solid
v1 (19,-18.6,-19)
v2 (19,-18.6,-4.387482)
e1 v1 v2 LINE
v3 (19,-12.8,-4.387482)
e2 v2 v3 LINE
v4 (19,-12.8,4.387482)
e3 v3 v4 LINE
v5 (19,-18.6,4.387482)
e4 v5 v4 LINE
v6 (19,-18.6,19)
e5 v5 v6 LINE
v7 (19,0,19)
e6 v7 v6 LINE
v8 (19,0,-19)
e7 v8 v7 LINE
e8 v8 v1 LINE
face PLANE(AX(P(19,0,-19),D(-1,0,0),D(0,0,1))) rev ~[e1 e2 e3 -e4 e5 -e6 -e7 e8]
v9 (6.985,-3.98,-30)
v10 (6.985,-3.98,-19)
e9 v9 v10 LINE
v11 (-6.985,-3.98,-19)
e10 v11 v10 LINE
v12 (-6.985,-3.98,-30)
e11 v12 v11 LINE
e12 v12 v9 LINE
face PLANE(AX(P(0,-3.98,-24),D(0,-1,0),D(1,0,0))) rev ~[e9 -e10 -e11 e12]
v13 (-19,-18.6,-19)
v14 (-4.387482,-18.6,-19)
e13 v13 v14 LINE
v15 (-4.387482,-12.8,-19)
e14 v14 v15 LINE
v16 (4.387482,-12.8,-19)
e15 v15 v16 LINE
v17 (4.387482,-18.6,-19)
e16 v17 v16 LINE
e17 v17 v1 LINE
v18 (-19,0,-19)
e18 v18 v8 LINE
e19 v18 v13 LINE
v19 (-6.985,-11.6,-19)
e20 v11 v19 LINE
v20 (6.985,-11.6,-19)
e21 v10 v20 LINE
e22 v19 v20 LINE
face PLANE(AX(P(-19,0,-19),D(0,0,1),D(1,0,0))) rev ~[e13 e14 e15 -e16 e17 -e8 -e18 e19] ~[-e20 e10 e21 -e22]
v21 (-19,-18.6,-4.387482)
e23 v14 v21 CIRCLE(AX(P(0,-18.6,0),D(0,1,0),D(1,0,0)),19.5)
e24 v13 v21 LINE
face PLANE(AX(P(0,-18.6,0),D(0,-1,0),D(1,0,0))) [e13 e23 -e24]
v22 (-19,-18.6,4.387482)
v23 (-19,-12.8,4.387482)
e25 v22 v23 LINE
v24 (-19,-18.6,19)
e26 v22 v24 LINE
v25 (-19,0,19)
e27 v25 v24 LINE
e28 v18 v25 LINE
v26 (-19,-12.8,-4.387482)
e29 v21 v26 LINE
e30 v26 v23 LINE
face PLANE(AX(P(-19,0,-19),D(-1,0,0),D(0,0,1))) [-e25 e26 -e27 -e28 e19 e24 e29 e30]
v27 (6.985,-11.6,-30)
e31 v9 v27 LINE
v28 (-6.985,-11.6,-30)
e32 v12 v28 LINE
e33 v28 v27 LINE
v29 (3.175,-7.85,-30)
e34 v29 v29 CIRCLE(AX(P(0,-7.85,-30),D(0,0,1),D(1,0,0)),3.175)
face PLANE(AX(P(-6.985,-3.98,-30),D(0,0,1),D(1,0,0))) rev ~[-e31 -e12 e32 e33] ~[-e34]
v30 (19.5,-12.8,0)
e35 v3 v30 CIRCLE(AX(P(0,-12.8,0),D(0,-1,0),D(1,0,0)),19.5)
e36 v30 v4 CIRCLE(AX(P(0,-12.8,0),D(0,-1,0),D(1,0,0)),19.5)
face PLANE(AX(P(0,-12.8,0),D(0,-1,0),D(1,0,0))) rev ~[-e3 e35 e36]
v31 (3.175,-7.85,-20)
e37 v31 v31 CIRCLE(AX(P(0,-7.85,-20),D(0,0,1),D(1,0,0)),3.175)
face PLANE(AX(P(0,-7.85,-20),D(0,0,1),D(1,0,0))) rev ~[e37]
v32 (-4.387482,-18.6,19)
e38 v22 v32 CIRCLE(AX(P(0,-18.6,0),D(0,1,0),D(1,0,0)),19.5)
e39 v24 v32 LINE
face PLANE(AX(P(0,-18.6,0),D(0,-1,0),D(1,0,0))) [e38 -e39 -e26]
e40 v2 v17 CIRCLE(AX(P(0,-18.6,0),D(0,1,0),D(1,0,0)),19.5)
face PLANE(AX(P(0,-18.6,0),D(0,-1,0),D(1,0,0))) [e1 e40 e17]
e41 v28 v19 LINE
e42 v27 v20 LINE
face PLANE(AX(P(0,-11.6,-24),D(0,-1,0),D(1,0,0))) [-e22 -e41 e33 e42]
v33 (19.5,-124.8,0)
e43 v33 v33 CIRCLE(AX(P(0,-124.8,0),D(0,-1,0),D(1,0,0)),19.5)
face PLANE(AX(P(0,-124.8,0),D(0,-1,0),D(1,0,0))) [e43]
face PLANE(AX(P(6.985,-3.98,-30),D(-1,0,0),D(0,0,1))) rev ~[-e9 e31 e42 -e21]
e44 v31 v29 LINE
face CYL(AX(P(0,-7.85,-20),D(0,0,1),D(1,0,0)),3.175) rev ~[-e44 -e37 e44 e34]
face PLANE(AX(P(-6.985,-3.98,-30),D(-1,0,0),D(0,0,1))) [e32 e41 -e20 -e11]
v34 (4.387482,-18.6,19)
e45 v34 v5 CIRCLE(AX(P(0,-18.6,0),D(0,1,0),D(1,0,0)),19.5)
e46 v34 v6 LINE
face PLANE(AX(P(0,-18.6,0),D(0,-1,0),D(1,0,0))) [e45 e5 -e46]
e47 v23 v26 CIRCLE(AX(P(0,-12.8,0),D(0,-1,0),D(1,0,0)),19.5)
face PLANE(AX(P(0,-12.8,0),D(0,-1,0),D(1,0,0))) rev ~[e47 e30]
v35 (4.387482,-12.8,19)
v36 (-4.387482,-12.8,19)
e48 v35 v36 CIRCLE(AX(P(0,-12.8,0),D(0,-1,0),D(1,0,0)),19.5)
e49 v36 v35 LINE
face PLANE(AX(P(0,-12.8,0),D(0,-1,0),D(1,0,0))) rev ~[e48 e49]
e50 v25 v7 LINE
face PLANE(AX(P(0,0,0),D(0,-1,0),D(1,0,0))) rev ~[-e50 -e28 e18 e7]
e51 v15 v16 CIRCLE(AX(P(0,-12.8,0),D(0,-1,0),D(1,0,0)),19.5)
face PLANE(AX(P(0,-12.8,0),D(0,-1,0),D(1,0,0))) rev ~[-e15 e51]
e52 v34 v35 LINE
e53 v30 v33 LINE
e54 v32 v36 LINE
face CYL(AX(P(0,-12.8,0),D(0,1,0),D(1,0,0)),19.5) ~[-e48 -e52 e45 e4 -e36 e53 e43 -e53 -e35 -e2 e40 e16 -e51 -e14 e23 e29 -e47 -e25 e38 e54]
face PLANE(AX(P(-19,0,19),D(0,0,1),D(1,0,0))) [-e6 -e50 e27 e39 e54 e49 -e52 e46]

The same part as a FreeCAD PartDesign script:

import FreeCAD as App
import Part
import Sketcher
Q = App.Units.Quantity


def add_polygon(sketch, points):
    """Adds a closed chain of lines whose ends are joined by coincident constraints."""
    first, n = sketch.GeometryCount, len(points)
    for a, b in zip(points, points[1:] + points[:1]):
        sketch.addGeometry(Part.LineSegment(App.Vector(*a, 0), App.Vector(*b, 0)), False)
    for i in range(n):
        sketch.addConstraint(Sketcher.Constraint("Coincident", first + i, 2, first + (i + 1) % n, 1))

doc = App.newDocument("Part")
body = doc.addObject("PartDesign::Body", "Body")

# Sketch on XZ plane
sketch1 = body.newObject("Sketcher::SketchObject", "Sketch")
sketch1.AttachmentSupport = (doc.getObject("XZ_Plane"), [""])
sketch1.MapMode = "FlatFace"
add_polygon(sketch1, [(-19, 19), (-19, -19), (19, -19), (19, 19)])  # lines 0-3
sketch1.addConstraint([
    Sketcher.Constraint("Vertical", 0),
    Sketcher.Constraint("Horizontal", 1),
    Sketcher.Constraint("Vertical", 2),
    Sketcher.Constraint("Horizontal", 3),
    Sketcher.Constraint("Symmetric", 0, 2, 2, 2, -1, 1),
    Sketcher.Constraint("Equal", 3, 0),
    Sketcher.Constraint("DistanceX", 1, 1, 1, 2, Q("38 mm")),
])
pad1 = body.newObject("PartDesign::Pad", "Pad")
pad1.Profile = sketch1
pad1.Length = 18.6

# Sketch on XZ plane
sketch2 = body.newObject("Sketcher::SketchObject", "Sketch001")
sketch2.AttachmentSupport = (doc.getObject("XZ_Plane"), [""])
sketch2.MapMode = "FlatFace"
sketch2.AttachmentOffset = App.Placement(App.Vector(0, 0, 3.98), App.Rotation())
add_polygon(sketch2, [(-6.985, -18), (-6.985, -30), (6.985, -30), (6.985, -18)])  # lines 0-3
sketch2.addConstraint([
    Sketcher.Constraint("Vertical", 0),
    Sketcher.Constraint("Horizontal", 1),
    Sketcher.Constraint("Vertical", 2),
    Sketcher.Constraint("Horizontal", 3),
    Sketcher.Constraint("DistanceY", 0, 2, 0, 1, Q("12 mm")),
    Sketcher.Constraint("DistanceY", 0, 2, -1, 1, Q("30 mm")),
    Sketcher.Constraint("DistanceX", 1, 1, 1, 2, Q("13.97 mm")),
    Sketcher.Constraint("DistanceX", 0, 2, -1, 1, Q("6.985 mm")),
])
pad2 = body.newObject("PartDesign::Pad", "Pad001")
pad2.Profile = sketch2
pad2.Length = 7.62

# Sketch on XZ plane
sketch3 = body.newObject("Sketcher::SketchObject", "Sketch002")
sketch3.AttachmentSupport = (doc.getObject("XZ_Plane"), [""])
sketch3.MapMode = "FlatFace"
sketch3.AttachmentOffset = App.Placement(App.Vector(0, 0, 12.8), App.Rotation())
sketch3.addGeometry(Part.Circle(App.Vector(0, 0, 0), App.Vector(0, 0, 1), 19.5), False)
sketch3.addConstraint([
    Sketcher.Constraint("Coincident", 0, 3, -1, 1),
    Sketcher.Constraint("Diameter", 0, Q("39 mm")),
])
pad3 = body.newObject("PartDesign::Pad", "Pad002")
pad3.Profile = sketch3
pad3.Length = 112

# Sketch on XY plane
sketch4 = body.newObject("Sketcher::SketchObject", "Sketch003")
sketch4.AttachmentSupport = (doc.getObject("XY_Plane"), [""])
sketch4.MapMode = "FlatFace"
sketch4.AttachmentOffset = App.Placement(App.Vector(0, 0, -20), App.Rotation())
sketch4.addGeometry(Part.Circle(App.Vector(0, -7.85, 0), App.Vector(0, 0, 1), 3.175), False)
sketch4.addConstraint([
    Sketcher.Constraint("PointOnObject", 0, 3, -2),
    Sketcher.Constraint("Diameter", 0, Q("6.35 mm")),
    Sketcher.Constraint("DistanceY", 0, 3, -1, 1, Q("7.85 mm")),
])
pocket1 = body.newObject("PartDesign::Pocket", "Pocket")
pocket1.Profile = sketch4
pocket1.Length = 20

doc.recompute()
